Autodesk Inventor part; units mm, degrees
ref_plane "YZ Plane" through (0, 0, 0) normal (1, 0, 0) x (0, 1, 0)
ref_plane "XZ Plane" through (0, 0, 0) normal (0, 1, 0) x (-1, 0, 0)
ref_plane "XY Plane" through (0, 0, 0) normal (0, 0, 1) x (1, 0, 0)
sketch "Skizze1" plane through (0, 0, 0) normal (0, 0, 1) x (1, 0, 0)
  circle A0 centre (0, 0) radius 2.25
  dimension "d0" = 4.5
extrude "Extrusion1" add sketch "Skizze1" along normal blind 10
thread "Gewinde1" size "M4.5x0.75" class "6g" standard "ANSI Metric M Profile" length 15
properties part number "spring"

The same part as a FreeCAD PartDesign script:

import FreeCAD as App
import Part
import Sketcher

V = App.Vector
Q = App.Units.Quantity

doc = App.newDocument("Part")
body = doc.addObject("PartDesign::Body", "Body")

# Sketch on XY plane
sketch1 = body.newObject("Sketcher::SketchObject", "Sketch")
sketch1.AttachmentSupport = (doc.getObject("XY_Plane"), [""])
sketch1.MapMode = "FlatFace"
sketch1.addGeometry(Part.Circle(V(0, 0, 0), V(0, 0, 1), 2.2), False)
sketch1.addConstraint([
    Sketcher.Constraint("Coincident", 0, 3, -1, 1),
    Sketcher.Constraint("Diameter", 0, Q("4.5 mm")),
])
pad1 = body.newObject("PartDesign::Pad", "Pad")
pad1.Profile = sketch1
pad1.Length = 10

doc.recompute()
